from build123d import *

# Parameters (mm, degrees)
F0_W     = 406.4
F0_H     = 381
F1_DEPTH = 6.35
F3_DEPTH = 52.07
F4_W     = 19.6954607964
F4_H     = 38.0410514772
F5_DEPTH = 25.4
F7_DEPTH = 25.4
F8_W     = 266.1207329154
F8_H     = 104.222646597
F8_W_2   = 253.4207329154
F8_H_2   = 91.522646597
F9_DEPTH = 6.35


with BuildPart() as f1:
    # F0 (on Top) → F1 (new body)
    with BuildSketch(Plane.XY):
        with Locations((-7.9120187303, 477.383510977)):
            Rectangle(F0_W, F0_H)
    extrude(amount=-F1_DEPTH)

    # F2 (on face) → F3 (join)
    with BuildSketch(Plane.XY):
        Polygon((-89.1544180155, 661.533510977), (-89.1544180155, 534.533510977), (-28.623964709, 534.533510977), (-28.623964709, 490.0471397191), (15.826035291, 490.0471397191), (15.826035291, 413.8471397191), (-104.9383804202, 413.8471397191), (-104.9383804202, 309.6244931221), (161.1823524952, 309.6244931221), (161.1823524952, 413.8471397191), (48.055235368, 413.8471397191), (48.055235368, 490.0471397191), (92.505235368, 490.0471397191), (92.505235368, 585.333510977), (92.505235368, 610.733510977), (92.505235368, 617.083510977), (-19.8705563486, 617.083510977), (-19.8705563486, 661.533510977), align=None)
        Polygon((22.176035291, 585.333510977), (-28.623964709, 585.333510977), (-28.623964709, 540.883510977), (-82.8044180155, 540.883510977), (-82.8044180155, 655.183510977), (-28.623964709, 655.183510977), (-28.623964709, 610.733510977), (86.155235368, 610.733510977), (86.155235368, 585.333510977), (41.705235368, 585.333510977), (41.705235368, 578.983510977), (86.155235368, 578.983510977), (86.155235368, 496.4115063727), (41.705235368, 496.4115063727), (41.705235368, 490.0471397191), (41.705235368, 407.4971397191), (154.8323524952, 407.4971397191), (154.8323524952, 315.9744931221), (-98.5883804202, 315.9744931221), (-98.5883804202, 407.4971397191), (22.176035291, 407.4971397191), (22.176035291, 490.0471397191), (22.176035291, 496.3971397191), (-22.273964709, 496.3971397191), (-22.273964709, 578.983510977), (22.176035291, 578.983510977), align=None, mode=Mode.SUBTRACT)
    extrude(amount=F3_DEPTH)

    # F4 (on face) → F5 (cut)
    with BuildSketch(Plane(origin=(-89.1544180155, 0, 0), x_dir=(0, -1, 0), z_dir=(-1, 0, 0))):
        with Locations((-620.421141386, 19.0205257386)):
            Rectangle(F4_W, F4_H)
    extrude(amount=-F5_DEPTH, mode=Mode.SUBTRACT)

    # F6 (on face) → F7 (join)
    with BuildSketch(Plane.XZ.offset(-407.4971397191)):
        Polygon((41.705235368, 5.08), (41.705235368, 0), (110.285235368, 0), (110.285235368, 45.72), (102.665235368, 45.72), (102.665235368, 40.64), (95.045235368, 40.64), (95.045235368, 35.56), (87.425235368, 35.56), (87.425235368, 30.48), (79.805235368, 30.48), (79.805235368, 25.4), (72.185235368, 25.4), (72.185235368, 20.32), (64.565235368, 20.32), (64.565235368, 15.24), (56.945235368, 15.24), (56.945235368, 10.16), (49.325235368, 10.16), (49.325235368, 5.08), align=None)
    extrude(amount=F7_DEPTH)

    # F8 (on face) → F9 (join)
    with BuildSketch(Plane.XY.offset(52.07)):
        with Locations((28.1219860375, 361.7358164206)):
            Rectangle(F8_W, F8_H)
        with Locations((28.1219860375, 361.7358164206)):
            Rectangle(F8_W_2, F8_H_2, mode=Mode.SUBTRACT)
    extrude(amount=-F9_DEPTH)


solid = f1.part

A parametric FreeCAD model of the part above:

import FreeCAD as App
import Part
import Sketcher

V = App.Vector
Q = App.Units.Quantity

doc = App.newDocument("Part")
params = doc.addObject("Spreadsheet::Sheet", "Params")
for row, (alias, value) in enumerate([
    ("sketch1_width", "16 in"),
    ("sketch1_height", "15 in"),
    ("pad1_length", "0.25 in"),
    ("sketch2_width", "2 in"),
    ("sketch2_height", "5 in"),
    ("sketch2_height2", "3 in"),
    ("sketch2_height3", "1 in"),
    ("sketch2_height4", "4.5 in"),
    ("pad2_length", "2.05 in"),
    ("pocket1_length", "1 in"),
    ("sketch4_width", "2.7 in"),
    ("sketch4_height", "0.2 in"),
    ("pad3_length", "1 in"),
    ("pad4_length", "0.25 in"),
], start=1):
    params.set(f"A{row}", alias)
    params.set(f"B{row}", "=" + value)
    params.setAlias(f"B{row}", alias)

body = doc.addObject("PartDesign::Body", "Body")

sketch1 = body.newObject("Sketcher::SketchObject", "Sketch")
sketch1.AttachmentSupport = (doc.getObject("XY_Plane"), [""])
sketch1.MapMode = "FlatFace"
sketch1.addGeometry([
    Part.LineSegment(V(-211.112019, 667.883511, 0), V(-211.112019, 286.883511, 0)),
    Part.LineSegment(V(-211.112019, 286.883511, 0), V(195.287981, 286.883511, 0)),
    Part.LineSegment(V(195.287981, 286.883511, 0), V(195.287981, 667.883511, 0)),
    Part.LineSegment(V(195.287981, 667.883511, 0), V(-211.112019, 667.883511, 0)),
], False)
sketch1.addConstraint([
    Sketcher.Constraint("Coincident", 0, 2, 1, 1),
    Sketcher.Constraint("Coincident", 1, 2, 2, 1),
    Sketcher.Constraint("Coincident", 2, 2, 3, 1),
    Sketcher.Constraint("Coincident", 3, 2, 0, 1),
    Sketcher.Constraint("Vertical", 0),
    Sketcher.Constraint("Horizontal", 1),
    Sketcher.Constraint("Vertical", 2),
    Sketcher.Constraint("Horizontal", 3),
    Sketcher.Constraint("DistanceX", 1, 1, 1, 2, Q("16 in")),
    Sketcher.Constraint("DistanceY", 0, 2, 0, 1, Q("15 in")),
    Sketcher.Constraint("DistanceX", 0, 2, -1, 1, 211.112019),
    Sketcher.Constraint("DistanceY", -1, 1, 0, 2, 286.883511),
])
sketch1.setExpression("Constraints[8]", "Params.sketch1_width")
sketch1.setExpression("Constraints[9]", "Params.sketch1_height")
pad1 = body.newObject("PartDesign::Pad", "Pad")
pad1.Profile = sketch1
pad1.setExpression("Length", "Params.pad1_length")
pad1.Reversed = True

sketch2 = body.newObject("Sketcher::SketchObject", "Sketch001")
sketch2.AttachmentSupport = (doc.getObject("XY_Plane"), [""])
sketch2.MapMode = "FlatFace"
sketch2.addGeometry([
    Part.LineSegment(V(-89.154418, 661.533511, 0), V(-89.154418, 534.533511, 0)),
    Part.LineSegment(V(-89.154418, 534.533511, 0), V(-28.623965, 534.533511, 0)),
    Part.LineSegment(V(-28.623965, 534.533511, 0), V(-28.623965, 490.04714, 0)),
    Part.LineSegment(V(-28.623965, 490.04714, 0), V(15.826035, 490.04714, 0)),
    Part.LineSegment(V(15.826035, 490.04714, 0), V(15.826035, 413.84714, 0)),
    Part.LineSegment(V(15.826035, 413.84714, 0), V(-104.93838, 413.84714, 0)),
    Part.LineSegment(V(-104.93838, 413.84714, 0), V(-104.93838, 309.624493, 0)),
    Part.LineSegment(V(-104.93838, 309.624493, 0), V(161.182352, 309.624493, 0)),
    Part.LineSegment(V(161.182352, 309.624493, 0), V(161.182352, 413.84714, 0)),
    Part.LineSegment(V(161.182352, 413.84714, 0), V(48.055235, 413.84714, 0)),
    Part.LineSegment(V(48.055235, 413.84714, 0), V(48.055235, 490.04714, 0)),
    Part.LineSegment(V(48.055235, 490.04714, 0), V(92.505235, 490.04714, 0)),
    Part.LineSegment(V(92.505235, 490.04714, 0), V(92.505235, 617.083511, 0)),
    Part.LineSegment(V(92.505235, 617.083511, 0), V(-19.870556, 617.083511, 0)),
    Part.LineSegment(V(-19.870556, 617.083511, 0), V(-19.870556, 661.533511, 0)),
    Part.LineSegment(V(-19.870556, 661.533511, 0), V(-89.154418, 661.533511, 0)),
    Part.LineSegment(V(22.176035, 578.983511, 0), V(22.176035, 585.333511, 0)),
    Part.LineSegment(V(22.176035, 585.333511, 0), V(-28.623965, 585.333511, 0)),
    Part.LineSegment(V(-28.623965, 585.333511, 0), V(-28.623965, 540.883511, 0)),
    Part.LineSegment(V(-28.623965, 540.883511, 0), V(-82.804418, 540.883511, 0)),
    Part.LineSegment(V(-82.804418, 540.883511, 0), V(-82.804418, 655.183511, 0)),
    Part.LineSegment(V(-82.804418, 655.183511, 0), V(-28.623965, 655.183511, 0)),
    Part.LineSegment(V(-28.623965, 655.183511, 0), V(-28.623965, 610.733511, 0)),
    Part.LineSegment(V(-28.623965, 610.733511, 0), V(86.155235, 610.733511, 0)),
    Part.LineSegment(V(86.155235, 610.733511, 0), V(86.155235, 585.333511, 0)),
    Part.LineSegment(V(86.155235, 585.333511, 0), V(41.705235, 585.333511, 0)),
    Part.LineSegment(V(41.705235, 585.333511, 0), V(41.705235, 578.983511, 0)),
    Part.LineSegment(V(41.705235, 578.983511, 0), V(86.155235, 578.983511, 0)),
    Part.LineSegment(V(86.155235, 578.983511, 0), V(86.155235, 496.411506, 0)),
    Part.LineSegment(V(86.155235, 496.411506, 0), V(41.705235, 496.411506, 0)),
    Part.LineSegment(V(41.705235, 496.411506, 0), V(41.705235, 407.49714, 0)),
    Part.LineSegment(V(41.705235, 407.49714, 0), V(154.832352, 407.49714, 0)),
    Part.LineSegment(V(154.832352, 407.49714, 0), V(154.832352, 315.974493, 0)),
    Part.LineSegment(V(154.832352, 315.974493, 0), V(-98.58838, 315.974493, 0)),
    Part.LineSegment(V(-98.58838, 315.974493, 0), V(-98.58838, 407.49714, 0)),
    Part.LineSegment(V(-98.58838, 407.49714, 0), V(22.176035, 407.49714, 0)),
    Part.LineSegment(V(22.176035, 407.49714, 0), V(22.176035, 496.39714, 0)),
    Part.LineSegment(V(22.176035, 496.39714, 0), V(-22.273965, 496.39714, 0)),
    Part.LineSegment(V(-22.273965, 496.39714, 0), V(-22.273965, 578.983511, 0)),
    Part.LineSegment(V(-22.273965, 578.983511, 0), V(22.176035, 578.983511, 0)),
], False)
sketch2.addConstraint([
    Sketcher.Constraint("Coincident", 0, 2, 1, 1),
    Sketcher.Constraint("Coincident", 1, 2, 2, 1),
    Sketcher.Constraint("Coincident", 2, 2, 3, 1),
    Sketcher.Constraint("Coincident", 3, 2, 4, 1),
    Sketcher.Constraint("Coincident", 4, 2, 5, 1),
    Sketcher.Constraint("Coincident", 5, 2, 6, 1),
    Sketcher.Constraint("Coincident", 6, 2, 7, 1),
    Sketcher.Constraint("Coincident", 7, 2, 8, 1),
    Sketcher.Constraint("Coincident", 8, 2, 9, 1),
    Sketcher.Constraint("Coincident", 9, 2, 10, 1),
    Sketcher.Constraint("Coincident", 10, 2, 11, 1),
    Sketcher.Constraint("Coincident", 11, 2, 12, 1),
    Sketcher.Constraint("Coincident", 12, 2, 13, 1),
    Sketcher.Constraint("Coincident", 13, 2, 14, 1),
    Sketcher.Constraint("Coincident", 14, 2, 15, 1),
    Sketcher.Constraint("Coincident", 15, 2, 0, 1),
    Sketcher.Constraint("Coincident", 16, 2, 17, 1),
    Sketcher.Constraint("Coincident", 17, 2, 18, 1),
    Sketcher.Constraint("Coincident", 18, 2, 19, 1),
    Sketcher.Constraint("Coincident", 19, 2, 20, 1),
    Sketcher.Constraint("Coincident", 20, 2, 21, 1),
    Sketcher.Constraint("Coincident", 21, 2, 22, 1),
    Sketcher.Constraint("Coincident", 22, 2, 23, 1),
    Sketcher.Constraint("Coincident", 23, 2, 24, 1),
    Sketcher.Constraint("Coincident", 24, 2, 25, 1),
    Sketcher.Constraint("Coincident", 25, 2, 26, 1),
    Sketcher.Constraint("Coincident", 26, 2, 27, 1),
    Sketcher.Constraint("Coincident", 27, 2, 28, 1),
    Sketcher.Constraint("Coincident", 28, 2, 29, 1),
    Sketcher.Constraint("Coincident", 29, 2, 30, 1),
    Sketcher.Constraint("Coincident", 30, 2, 31, 1),
    Sketcher.Constraint("Coincident", 31, 2, 32, 1),
    Sketcher.Constraint("Coincident", 32, 2, 33, 1),
    Sketcher.Constraint("Coincident", 33, 2, 34, 1),
    Sketcher.Constraint("Coincident", 34, 2, 35, 1),
    Sketcher.Constraint("Coincident", 35, 2, 36, 1),
    Sketcher.Constraint("Coincident", 36, 2, 37, 1),
    Sketcher.Constraint("Coincident", 37, 2, 38, 1),
    Sketcher.Constraint("Coincident", 38, 2, 39, 1),
    Sketcher.Constraint("Coincident", 39, 2, 16, 1),
    Sketcher.Constraint("Vertical", 0),
    Sketcher.Constraint("Horizontal", 1),
    Sketcher.Constraint("Vertical", 2),
    Sketcher.Constraint("Horizontal", 3),
    Sketcher.Constraint("Vertical", 4),
    Sketcher.Constraint("Horizontal", 5),
    Sketcher.Constraint("Vertical", 6),
    Sketcher.Constraint("Horizontal", 7),
    Sketcher.Constraint("Vertical", 8),
    Sketcher.Constraint("Horizontal", 9),
    Sketcher.Constraint("Vertical", 10),
    Sketcher.Constraint("Horizontal", 11),
    Sketcher.Constraint("Vertical", 12),
    Sketcher.Constraint("Horizontal", 13),
    Sketcher.Constraint("Vertical", 14),
    Sketcher.Constraint("Horizontal", 15),
    Sketcher.Constraint("Vertical", 16),
    Sketcher.Constraint("Horizontal", 17),
    Sketcher.Constraint("Vertical", 18),
    Sketcher.Constraint("Horizontal", 19),
    Sketcher.Constraint("Vertical", 20),
    Sketcher.Constraint("Horizontal", 21),
    Sketcher.Constraint("Vertical", 22),
    Sketcher.Constraint("Horizontal", 23),
    Sketcher.Constraint("Vertical", 24),
    Sketcher.Constraint("Horizontal", 25),
    Sketcher.Constraint("Vertical", 26),
    Sketcher.Constraint("Horizontal", 27),
    Sketcher.Constraint("Vertical", 28),
    Sketcher.Constraint("Horizontal", 29),
    Sketcher.Constraint("Vertical", 30),
    Sketcher.Constraint("Horizontal", 31),
    Sketcher.Constraint("Vertical", 32),
    Sketcher.Constraint("Horizontal", 33),
    Sketcher.Constraint("Vertical", 34),
    Sketcher.Constraint("Horizontal", 35),
    Sketcher.Constraint("Vertical", 36),
    Sketcher.Constraint("Horizontal", 37),
    Sketcher.Constraint("Vertical", 38),
    Sketcher.Constraint("Horizontal", 39),
    Sketcher.Constraint("Horizontal", 5, 2, 8, 2),
    Sketcher.Constraint("Horizontal", 3, 2, 10, 2),
    Sketcher.Constraint("Horizontal", 17, 2, 24, 2),
    Sketcher.Constraint("Horizontal", 31, 2, 34, 2),
    Sketcher.Constraint("Horizontal", 27, 2, 38, 2),
    Sketcher.Constraint("Vertical", 2, 2, 17, 2),
    Sketcher.Constraint("Vertical", 18, 2, 21, 2),
    Sketcher.Constraint("Vertical", 24, 2, 27, 2),
    Sketcher.Constraint("Vertical", 26, 2, 29, 2),
    Sketcher.Constraint("Vertical", 16, 2, 35, 2),
    Sketcher.Constraint("Equal", 3, 11),
    Sketcher.Constraint("Equal", 11, 25),
    Sketcher.Constraint("Equal", 9, 31),
    Sketcher.Constraint("Equal", 5, 35),
    Sketcher.Constraint("Equal", 29, 37),
    Sketcher.Constraint("Equal", 39, 14),
    Sketcher.Constraint("Equal", 14, 18),
    Sketcher.Constraint("Equal", 18, 22),
    Sketcher.Constraint("DistanceX", 17, 2, 17, 1, Q("2 in")),
    Sketcher.Constraint("DistanceY", 0, 2, 0, 1, Q("5 in")),
    Sketcher.Constraint("DistanceY", 4, 2, 4, 1, Q("3 in")),
    Sketcher.Constraint("DistanceY", 24, 2, 24, 1, Q("1 in")),
    Sketcher.Constraint("DistanceY", 20, 1, 20, 2, Q("4.5 in")),
    Sketcher.Constraint("DistanceY", 36, 1, 36, 2, Q("3.5 in")),
    Sketcher.Constraint("DistanceY", 1, 2, 16, 2, Q("2 in")),
    Sketcher.Constraint("DistanceX", 25, 2, 12, 2, Q("2 in")),
    Sketcher.Constraint("DistanceY", 16, 1, 16, 2, Q("0.25 in")),
    Sketcher.Constraint("DistanceX", 0, 2, 19, 2, Q("0.25 in")),
    Sketcher.Constraint("DistanceY", 30, 2, 9, 2, Q("0.25 in")),
    Sketcher.Constraint("DistanceY", 7, 2, 32, 2, Q("0.25 in")),
    Sketcher.Constraint("DistanceX", 23, 1, 23, 2, 114.7792),
    Sketcher.Constraint("DistanceX", 13, 2, 13, 1, 112.375792),
    Sketcher.Constraint("DistanceX", 15, 2, 15, 1, 69.283862),
    Sketcher.Constraint("DistanceY", 2, 2, 2, 1, 44.486371),
    Sketcher.Constraint("DistanceX", 5, 2, 5, 1, 120.764416),
    Sketcher.Constraint("DistanceX", 7, 1, 7, 2, 266.120733),
    Sketcher.Constraint("DistanceY", 6, 2, 6, 1, 104.222647),
    Sketcher.Constraint("DistanceY", 28, 2, 28, 1, 82.572005),
    Sketcher.Constraint("DistanceX", 0, 2, -1, 1, 89.154418),
    Sketcher.Constraint("DistanceY", -1, 1, 0, 2, 534.533511),
])
sketch2.setExpression("Constraints[98]", "Params.sketch2_width")
sketch2.setExpression("Constraints[99]", "Params.sketch2_height")
sketch2.setExpression("Constraints[100]", "Params.sketch2_height2")
sketch2.setExpression("Constraints[101]", "Params.sketch2_height3")
sketch2.setExpression("Constraints[102]", "Params.sketch2_height4")
pad2 = body.newObject("PartDesign::Pad", "Pad001")
pad2.Profile = sketch2
pad2.setExpression("Length", "Params.pad2_length")

sketch3 = body.newObject("Sketcher::SketchObject", "Sketch002")
sketch3.AttachmentSupport = (doc.getObject("YZ_Plane"), [""])
sketch3.MapMode = "FlatFace"
sketch3.AttachmentOffset = App.Placement(V(0, 0, -89.154418), App.Rotation())
sketch3.addGeometry([
    Part.LineSegment(V(630.268872, 38.041051, 0), V(630.268872, 0, 0)),
    Part.LineSegment(V(630.268872, 0, 0), V(610.573411, 0, 0)),
    Part.LineSegment(V(610.573411, 0, 0), V(610.573411, 38.041051, 0)),
    Part.LineSegment(V(610.573411, 38.041051, 0), V(630.268872, 38.041051, 0)),
], False)
sketch3.addConstraint([
    Sketcher.Constraint("Coincident", 0, 2, 1, 1),
    Sketcher.Constraint("Coincident", 1, 2, 2, 1),
    Sketcher.Constraint("Coincident", 2, 2, 3, 1),
    Sketcher.Constraint("Coincident", 3, 2, 0, 1),
    Sketcher.Constraint("Vertical", 0),
    Sketcher.Constraint("Horizontal", 1),
    Sketcher.Constraint("Vertical", 2),
    Sketcher.Constraint("Horizontal", 3),
    Sketcher.Constraint("PointOnObject", 0, 2, -1),
    Sketcher.Constraint("DistanceX", 1, 2, 1, 1, 19.695461),
    Sketcher.Constraint("DistanceY", 0, 2, 0, 1, 38.041051),
    Sketcher.Constraint("DistanceX", -1, 1, 0, 2, 630.268872),
])
pocket1 = body.newObject("PartDesign::Pocket", "Pocket")
pocket1.Profile = sketch3
pocket1.setExpression("Length", "Params.pocket1_length")
pocket1.Reversed = True

sketch4 = body.newObject("Sketcher::SketchObject", "Sketch003")
sketch4.AttachmentSupport = (doc.getObject("XZ_Plane"), [""])
sketch4.MapMode = "FlatFace"
sketch4.AttachmentOffset = App.Placement(V(0, 0, -407.49714), App.Rotation())
sketch4.addGeometry([
    Part.LineSegment(V(41.705235, 5.08, 0), V(41.705235, 0, 0)),
    Part.LineSegment(V(41.705235, 0, 0), V(110.285235, 0, 0)),
    Part.LineSegment(V(110.285235, 0, 0), V(110.285235, 45.72, 0)),
    Part.LineSegment(V(110.285235, 45.72, 0), V(102.665235, 45.72, 0)),
    Part.LineSegment(V(102.665235, 45.72, 0), V(102.665235, 40.64, 0)),
    Part.LineSegment(V(102.665235, 40.64, 0), V(95.045235, 40.64, 0)),
    Part.LineSegment(V(95.045235, 40.64, 0), V(95.045235, 35.56, 0)),
    Part.LineSegment(V(95.045235, 35.56, 0), V(87.425235, 35.56, 0)),
    Part.LineSegment(V(87.425235, 35.56, 0), V(87.425235, 30.48, 0)),
    Part.LineSegment(V(87.425235, 30.48, 0), V(79.805235, 30.48, 0)),
    Part.LineSegment(V(79.805235, 30.48, 0), V(79.805235, 25.4, 0)),
    Part.LineSegment(V(79.805235, 25.4, 0), V(72.185235, 25.4, 0)),
    Part.LineSegment(V(72.185235, 25.4, 0), V(72.185235, 20.32, 0)),
    Part.LineSegment(V(72.185235, 20.32, 0), V(64.565235, 20.32, 0)),
    Part.LineSegment(V(64.565235, 20.32, 0), V(64.565235, 15.24, 0)),
    Part.LineSegment(V(64.565235, 15.24, 0), V(56.945235, 15.24, 0)),
    Part.LineSegment(V(56.945235, 15.24, 0), V(56.945235, 10.16, 0)),
    Part.LineSegment(V(56.945235, 10.16, 0), V(49.325235, 10.16, 0)),
    Part.LineSegment(V(49.325235, 10.16, 0), V(49.325235, 5.08, 0)),
    Part.LineSegment(V(49.325235, 5.08, 0), V(41.705235, 5.08, 0)),
], False)
sketch4.addConstraint([
    Sketcher.Constraint("Coincident", 0, 2, 1, 1),
    Sketcher.Constraint("Coincident", 1, 2, 2, 1),
    Sketcher.Constraint("Coincident", 2, 2, 3, 1),
    Sketcher.Constraint("Coincident", 3, 2, 4, 1),
    Sketcher.Constraint("Coincident", 4, 2, 5, 1),
    Sketcher.Constraint("Coincident", 5, 2, 6, 1),
    Sketcher.Constraint("Coincident", 6, 2, 7, 1),
    Sketcher.Constraint("Coincident", 7, 2, 8, 1),
    Sketcher.Constraint("Coincident", 8, 2, 9, 1),
    Sketcher.Constraint("Coincident", 9, 2, 10, 1),
    Sketcher.Constraint("Coincident", 10, 2, 11, 1),
    Sketcher.Constraint("Coincident", 11, 2, 12, 1),
    Sketcher.Constraint("Coincident", 12, 2, 13, 1),
    Sketcher.Constraint("Coincident", 13, 2, 14, 1),
    Sketcher.Constraint("Coincident", 14, 2, 15, 1),
    Sketcher.Constraint("Coincident", 15, 2, 16, 1),
    Sketcher.Constraint("Coincident", 16, 2, 17, 1),
    Sketcher.Constraint("Coincident", 17, 2, 18, 1),
    Sketcher.Constraint("Coincident", 18, 2, 19, 1),
    Sketcher.Constraint("Coincident", 19, 2, 0, 1),
    Sketcher.Constraint("Vertical", 0),
    Sketcher.Constraint("Horizontal", 1),
    Sketcher.Constraint("Vertical", 2),
    Sketcher.Constraint("Horizontal", 3),
    Sketcher.Constraint("Vertical", 4),
    Sketcher.Constraint("Horizontal", 5),
    Sketcher.Constraint("Vertical", 6),
    Sketcher.Constraint("Horizontal", 7),
    Sketcher.Constraint("Vertical", 8),
    Sketcher.Constraint("Horizontal", 9),
    Sketcher.Constraint("Vertical", 10),
    Sketcher.Constraint("Horizontal", 11),
    Sketcher.Constraint("Vertical", 12),
    Sketcher.Constraint("Horizontal", 13),
    Sketcher.Constraint("Vertical", 14),
    Sketcher.Constraint("Horizontal", 15),
    Sketcher.Constraint("Vertical", 16),
    Sketcher.Constraint("Horizontal", 17),
    Sketcher.Constraint("Vertical", 18),
    Sketcher.Constraint("Horizontal", 19),
    Sketcher.Constraint("PointOnObject", 0, 2, -1),
    Sketcher.Constraint("Equal", 3, 5),
    Sketcher.Constraint("Equal", 5, 7),
    Sketcher.Constraint("Equal", 7, 9),
    Sketcher.Constraint("Equal", 9, 11),
    Sketcher.Constraint("Equal", 11, 13),
    Sketcher.Constraint("Equal", 13, 15),
    Sketcher.Constraint("Equal", 15, 17),
    Sketcher.Constraint("Equal", 17, 19),
    Sketcher.Constraint("Equal", 0, 4),
    Sketcher.Constraint("Equal", 4, 6),
    Sketcher.Constraint("Equal", 6, 8),
    Sketcher.Constraint("Equal", 8, 10),
    Sketcher.Constraint("Equal", 10, 12),
    Sketcher.Constraint("Equal", 12, 14),
    Sketcher.Constraint("Equal", 14, 16),
    Sketcher.Constraint("Equal", 16, 18),
    Sketcher.Constraint("DistanceX", 1, 1, 1, 2, Q("2.7 in")),
    Sketcher.Constraint("DistanceY", 0, 2, 0, 1, Q("0.2 in")),
    Sketcher.Constraint("DistanceX", -1, 1, 0, 2, 41.705235),
])
sketch4.setExpression("Constraints[57]", "Params.sketch4_width")
sketch4.setExpression("Constraints[58]", "Params.sketch4_height")
pad3 = body.newObject("PartDesign::Pad", "Pad002")
pad3.Profile = sketch4
pad3.setExpression("Length", "Params.pad3_length")

sketch5 = body.newObject("Sketcher::SketchObject", "Sketch004")
sketch5.AttachmentSupport = (doc.getObject("XY_Plane"), [""])
sketch5.MapMode = "FlatFace"
sketch5.AttachmentOffset = App.Placement(V(0, 0, 2.05 * 25.4), App.Rotation())
sketch5.addGeometry([
    Part.LineSegment(V(-104.93838, 413.84714, 0), V(-104.93838, 309.624493, 0)),
    Part.LineSegment(V(-104.93838, 309.624493, 0), V(161.182352, 309.624493, 0)),
    Part.LineSegment(V(161.182352, 309.624493, 0), V(161.182352, 413.84714, 0)),
    Part.LineSegment(V(161.182352, 413.84714, 0), V(-104.93838, 413.84714, 0)),
    Part.LineSegment(V(154.832352, 315.974493, 0), V(-98.58838, 315.974493, 0)),
    Part.LineSegment(V(-98.58838, 315.974493, 0), V(-98.58838, 407.49714, 0)),
    Part.LineSegment(V(-98.58838, 407.49714, 0), V(154.832352, 407.49714, 0)),
    Part.LineSegment(V(154.832352, 407.49714, 0), V(154.832352, 315.974493, 0)),
], False)
sketch5.addConstraint([
    Sketcher.Constraint("Coincident", 0, 2, 1, 1),
    Sketcher.Constraint("Coincident", 1, 2, 2, 1),
    Sketcher.Constraint("Coincident", 2, 2, 3, 1),
    Sketcher.Constraint("Coincident", 3, 2, 0, 1),
    Sketcher.Constraint("Coincident", 4, 2, 5, 1),
    Sketcher.Constraint("Coincident", 5, 2, 6, 1),
    Sketcher.Constraint("Coincident", 6, 2, 7, 1),
    Sketcher.Constraint("Coincident", 7, 2, 4, 1),
    Sketcher.Constraint("Vertical", 0),
    Sketcher.Constraint("Horizontal", 1),
    Sketcher.Constraint("Vertical", 2),
    Sketcher.Constraint("Horizontal", 3),
    Sketcher.Constraint("Horizontal", 4),
    Sketcher.Constraint("Vertical", 5),
    Sketcher.Constraint("Horizontal", 6),
    Sketcher.Constraint("Vertical", 7),
    Sketcher.Constraint("DistanceX", 0, 2, 4, 2, Q("0.25 in")),
    Sketcher.Constraint("DistanceY", 0, 2, 4, 2, Q("0.25 in")),
    Sketcher.Constraint("DistanceY", 5, 2, 3, 2, Q("0.25 in")),
    Sketcher.Constraint("DistanceX", 6, 2, 2, 2, Q("0.25 in")),
    Sketcher.Constraint("DistanceX", 1, 1, 1, 2, 266.120733),
    Sketcher.Constraint("DistanceY", 0, 2, 0, 1, 104.222647),
    Sketcher.Constraint("DistanceX", 0, 2, -1, 1, 104.93838),
    Sketcher.Constraint("DistanceY", -1, 1, 2, 2, 413.84714),
])
pad4 = body.newObject("PartDesign::Pad", "Pad003")
pad4.Profile = sketch5
pad4.setExpression("Length", "Params.pad4_length")
pad4.Reversed = True

doc.recompute()
